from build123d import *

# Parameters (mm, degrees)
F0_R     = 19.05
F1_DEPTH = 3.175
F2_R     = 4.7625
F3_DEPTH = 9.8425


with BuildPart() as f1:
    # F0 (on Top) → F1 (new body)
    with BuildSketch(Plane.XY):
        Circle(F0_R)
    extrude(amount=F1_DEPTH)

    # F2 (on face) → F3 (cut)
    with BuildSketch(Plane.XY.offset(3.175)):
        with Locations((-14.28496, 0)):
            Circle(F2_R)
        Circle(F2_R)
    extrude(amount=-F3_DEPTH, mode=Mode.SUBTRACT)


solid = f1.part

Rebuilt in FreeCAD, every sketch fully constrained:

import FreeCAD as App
import Part
import Sketcher
from FreeCAD import Vector
Q = App.Units.Quantity

doc = App.newDocument("Part")
body = doc.addObject("PartDesign::Body", "Body")

# Sketch on XY plane
sketch1 = body.newObject("Sketcher::SketchObject", "Sketch")
sketch1.AttachmentSupport = (doc.getObject("XY_Plane"), [""])
sketch1.MapMode = "FlatFace"
sketch1.addGeometry(Part.Circle(Vector(0, 0, 0), Vector(0, 0, 1), 19), False)
sketch1.addConstraint([
    Sketcher.Constraint("Coincident", 0, 3, -1, 1),
    Sketcher.Constraint("Diameter", 0, Q("1.5 in")),
])
pad1 = body.newObject("PartDesign::Pad", "Pad")
pad1.Profile = sketch1
pad1.Length = Q("0.125 in")

# Sketch on XY plane
sketch2 = body.newObject("Sketcher::SketchObject", "Sketch001")
sketch2.AttachmentSupport = (doc.getObject("XY_Plane"), [""])
sketch2.MapMode = "FlatFace"
sketch2.AttachmentOffset = App.Placement(Vector(0, 0, 0.125 * 25.4), App.Rotation())
sketch2.addGeometry([
    Part.Circle(Vector(-14.3, 0, 0), Vector(0, 0, 1), 4.8),
    Part.Circle(Vector(0, 0, 0), Vector(0, 0, 1), 4.8),
], False)
sketch2.addConstraint([
    Sketcher.Constraint("Coincident", 1, 3, -1, 1),
    Sketcher.Constraint("Equal", 0, 1),
    Sketcher.Constraint("PointOnObject", 0, 3, -1),
    Sketcher.Constraint("Diameter", 0, Q("0.375 in")),
    Sketcher.Constraint("DistanceX", 0, 3, -1, 1, Q("0.5624 in")),
])
pocket1 = body.newObject("PartDesign::Pocket", "Pocket")
pocket1.Profile = sketch2
pocket1.Length = Q("0.3875 in")

doc.recompute()
